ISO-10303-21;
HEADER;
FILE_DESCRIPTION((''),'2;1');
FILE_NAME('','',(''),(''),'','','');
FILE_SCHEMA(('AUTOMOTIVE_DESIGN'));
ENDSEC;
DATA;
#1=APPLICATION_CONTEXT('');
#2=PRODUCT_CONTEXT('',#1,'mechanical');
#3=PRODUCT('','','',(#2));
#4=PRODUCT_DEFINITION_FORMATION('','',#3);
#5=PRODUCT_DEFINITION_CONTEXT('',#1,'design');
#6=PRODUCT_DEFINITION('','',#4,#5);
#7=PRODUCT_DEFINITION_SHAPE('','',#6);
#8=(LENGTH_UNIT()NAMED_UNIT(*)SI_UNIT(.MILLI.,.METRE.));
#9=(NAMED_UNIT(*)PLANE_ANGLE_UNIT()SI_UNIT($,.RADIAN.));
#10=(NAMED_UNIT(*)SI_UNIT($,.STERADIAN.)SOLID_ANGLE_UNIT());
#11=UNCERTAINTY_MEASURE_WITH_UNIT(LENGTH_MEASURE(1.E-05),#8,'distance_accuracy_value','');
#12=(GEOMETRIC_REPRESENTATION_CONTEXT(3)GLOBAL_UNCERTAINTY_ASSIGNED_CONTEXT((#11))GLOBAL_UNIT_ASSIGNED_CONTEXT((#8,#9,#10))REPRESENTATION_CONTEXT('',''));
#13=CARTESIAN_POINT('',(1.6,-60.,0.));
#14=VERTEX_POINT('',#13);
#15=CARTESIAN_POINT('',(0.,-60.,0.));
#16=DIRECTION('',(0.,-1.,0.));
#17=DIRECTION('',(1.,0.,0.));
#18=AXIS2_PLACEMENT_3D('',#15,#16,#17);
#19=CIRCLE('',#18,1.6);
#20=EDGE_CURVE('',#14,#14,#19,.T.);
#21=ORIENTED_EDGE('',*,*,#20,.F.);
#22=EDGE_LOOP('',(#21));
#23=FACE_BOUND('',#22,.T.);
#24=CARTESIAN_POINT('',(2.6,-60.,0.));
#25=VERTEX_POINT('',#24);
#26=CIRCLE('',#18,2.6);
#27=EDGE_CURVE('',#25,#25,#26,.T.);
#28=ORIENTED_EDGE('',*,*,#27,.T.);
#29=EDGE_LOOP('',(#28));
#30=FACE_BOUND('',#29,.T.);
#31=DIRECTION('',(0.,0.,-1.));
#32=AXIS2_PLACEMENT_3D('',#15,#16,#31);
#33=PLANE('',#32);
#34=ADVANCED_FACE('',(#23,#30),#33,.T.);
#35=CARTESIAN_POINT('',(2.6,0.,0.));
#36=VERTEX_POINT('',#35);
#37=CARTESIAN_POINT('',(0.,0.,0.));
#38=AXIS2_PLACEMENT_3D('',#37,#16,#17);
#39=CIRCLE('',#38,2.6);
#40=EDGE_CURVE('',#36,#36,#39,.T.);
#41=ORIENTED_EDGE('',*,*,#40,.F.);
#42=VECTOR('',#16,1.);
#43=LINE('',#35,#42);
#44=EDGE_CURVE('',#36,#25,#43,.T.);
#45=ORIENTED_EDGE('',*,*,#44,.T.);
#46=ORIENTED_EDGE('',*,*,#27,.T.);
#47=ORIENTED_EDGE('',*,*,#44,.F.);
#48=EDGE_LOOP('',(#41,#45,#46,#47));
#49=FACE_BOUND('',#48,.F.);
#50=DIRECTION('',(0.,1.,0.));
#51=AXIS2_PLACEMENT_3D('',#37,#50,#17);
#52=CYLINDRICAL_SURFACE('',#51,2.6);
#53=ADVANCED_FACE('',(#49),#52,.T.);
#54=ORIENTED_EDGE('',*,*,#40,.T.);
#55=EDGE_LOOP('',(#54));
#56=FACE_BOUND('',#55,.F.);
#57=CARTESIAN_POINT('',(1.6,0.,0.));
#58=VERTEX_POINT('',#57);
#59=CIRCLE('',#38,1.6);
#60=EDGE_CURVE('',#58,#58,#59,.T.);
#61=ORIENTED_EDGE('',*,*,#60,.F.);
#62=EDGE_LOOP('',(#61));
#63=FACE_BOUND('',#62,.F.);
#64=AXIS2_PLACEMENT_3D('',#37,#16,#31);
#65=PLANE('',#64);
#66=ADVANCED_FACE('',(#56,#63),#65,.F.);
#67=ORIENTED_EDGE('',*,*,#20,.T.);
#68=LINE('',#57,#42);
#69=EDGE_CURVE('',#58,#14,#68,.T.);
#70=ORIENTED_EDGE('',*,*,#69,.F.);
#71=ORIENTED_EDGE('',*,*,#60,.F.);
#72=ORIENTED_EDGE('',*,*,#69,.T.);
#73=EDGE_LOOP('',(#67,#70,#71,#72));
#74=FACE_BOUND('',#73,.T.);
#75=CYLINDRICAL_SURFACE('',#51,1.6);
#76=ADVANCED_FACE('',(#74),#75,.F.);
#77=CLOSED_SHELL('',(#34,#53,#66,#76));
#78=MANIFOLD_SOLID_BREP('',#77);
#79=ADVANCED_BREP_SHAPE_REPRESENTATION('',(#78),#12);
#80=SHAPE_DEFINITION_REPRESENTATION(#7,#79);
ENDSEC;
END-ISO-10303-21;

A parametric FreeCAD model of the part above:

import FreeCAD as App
import Part
import Sketcher
from FreeCAD import Vector

doc = App.newDocument("Part")
params = doc.addObject("Spreadsheet::Sheet", "Params")
for row, (alias, value) in enumerate([
    ("sketch1_diameter", "5.2 mm"),
    ("sketch1_diameter2", "3.2 mm"),
    ("pad1_length", "60 mm"),
], start=1):
    params.set(f"A{row}", alias)
    params.set(f"B{row}", "=" + value)
    params.setAlias(f"B{row}", alias)

body = doc.addObject("PartDesign::Body", "Body")

# Sketch on XZ plane
sketch1 = doc.addObject("Sketcher::SketchObject", "Sketch")
body.addObject(sketch1)
sketch1.AttachmentSupport = (doc.XZ_Plane, [""])
sketch1.MapMode = "FlatFace"
sketch1.addGeometry([
    Part.Circle(Vector(0, 0, 0), Vector(0, 0, 1), 2.6),
    Part.Circle(Vector(0, 0, 0), Vector(0, 0, 1), 1.6),
], False)
sketch1.addConstraint([
    Sketcher.Constraint("Coincident", 0, 3, -1, 1),
    Sketcher.Constraint("Coincident", 1, 3, -1, 1),
    Sketcher.Constraint("Diameter", 0, 5.2),
    Sketcher.Constraint("Diameter", 1, 3.2),
])
sketch1.setExpression("Constraints[2]", "Params.sketch1_diameter")
sketch1.setExpression("Constraints[3]", "Params.sketch1_diameter2")
pad1 = doc.addObject("PartDesign::Pad", "Pad")
body.addObject(pad1)
pad1.Profile = sketch1
pad1.setExpression("Length", "Params.pad1_length")

doc.recompute()
